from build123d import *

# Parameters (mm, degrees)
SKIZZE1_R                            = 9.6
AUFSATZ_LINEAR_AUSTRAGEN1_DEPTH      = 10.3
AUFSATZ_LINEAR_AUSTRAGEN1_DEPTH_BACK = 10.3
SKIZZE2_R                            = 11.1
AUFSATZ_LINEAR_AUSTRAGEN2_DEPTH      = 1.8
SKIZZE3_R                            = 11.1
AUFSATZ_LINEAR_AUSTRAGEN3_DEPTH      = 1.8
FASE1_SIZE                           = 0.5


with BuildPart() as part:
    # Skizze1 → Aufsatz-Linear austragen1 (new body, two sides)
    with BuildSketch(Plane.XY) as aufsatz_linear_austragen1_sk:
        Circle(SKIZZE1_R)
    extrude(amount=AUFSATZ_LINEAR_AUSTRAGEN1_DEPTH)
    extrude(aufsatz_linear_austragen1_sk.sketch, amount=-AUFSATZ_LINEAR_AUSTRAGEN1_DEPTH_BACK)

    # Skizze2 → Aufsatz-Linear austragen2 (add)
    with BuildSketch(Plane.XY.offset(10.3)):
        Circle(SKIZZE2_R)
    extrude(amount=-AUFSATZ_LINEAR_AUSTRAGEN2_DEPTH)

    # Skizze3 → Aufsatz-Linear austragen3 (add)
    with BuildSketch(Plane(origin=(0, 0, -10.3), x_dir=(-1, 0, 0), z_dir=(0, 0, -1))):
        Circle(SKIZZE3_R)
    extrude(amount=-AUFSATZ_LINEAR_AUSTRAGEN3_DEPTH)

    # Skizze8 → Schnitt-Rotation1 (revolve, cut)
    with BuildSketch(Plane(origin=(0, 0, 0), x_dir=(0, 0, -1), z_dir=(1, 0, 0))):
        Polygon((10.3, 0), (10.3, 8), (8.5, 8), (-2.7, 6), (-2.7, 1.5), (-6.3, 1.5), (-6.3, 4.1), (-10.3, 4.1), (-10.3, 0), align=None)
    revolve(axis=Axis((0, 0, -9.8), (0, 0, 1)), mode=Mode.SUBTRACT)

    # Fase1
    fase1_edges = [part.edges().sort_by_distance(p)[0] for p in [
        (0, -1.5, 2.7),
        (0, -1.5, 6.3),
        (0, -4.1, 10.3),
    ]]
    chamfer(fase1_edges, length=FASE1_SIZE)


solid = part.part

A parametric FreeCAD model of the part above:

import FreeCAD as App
import Part
import Sketcher


def edges_at(feature, points):
    """Names of the edges that pass closest to the given points."""
    edges = feature.Shape.Edges
    near = lambda p: min(range(len(edges)), key=lambda i: edges[i].distToShape(Part.Vertex(*p))[0])
    return sorted({f"Edge{near(p) + 1}" for p in points})

doc = App.newDocument("Part")
body = doc.addObject("PartDesign::Body", "Body")

# Sketch on XY plane
sketch1 = body.newObject("Sketcher::SketchObject", "Sketch")
sketch1.AttachmentSupport = (doc.getObject("XY_Plane"), [""])
sketch1.MapMode = "FlatFace"
sketch1.addGeometry(Part.Circle(App.Vector(0, 0, 0), App.Vector(0, 0, 1), 10), False)
sketch1.addConstraint([
    Sketcher.Constraint("Coincident", 0, 3, -1, 1),
    Sketcher.Constraint("Diameter", 0, 19.2),
])
pad1 = body.newObject("PartDesign::Pad", "Pad")
pad1.Profile = sketch1
pad1.Type = "TwoLengths"
pad1.Length = 10.3
pad1.Length2 = 10.3

# Sketch on XY plane
sketch2 = body.newObject("Sketcher::SketchObject", "Sketch001")
sketch2.AttachmentSupport = (doc.getObject("XY_Plane"), [""])
sketch2.MapMode = "FlatFace"
sketch2.AttachmentOffset = App.Placement(App.Vector(0, 0, 10.3), App.Rotation())
sketch2.addGeometry(Part.Circle(App.Vector(0, 0, 0), App.Vector(0, 0, 1), 11), False)
sketch2.addConstraint([
    Sketcher.Constraint("Coincident", 0, 3, -1, 1),
    Sketcher.Constraint("Diameter", 0, 22.2),
])
pad2 = body.newObject("PartDesign::Pad", "Pad001")
pad2.Profile = sketch2
pad2.Length = 1.8
pad2.Reversed = True

# Sketch on XY plane
sketch3 = body.newObject("Sketcher::SketchObject", "Sketch002")
sketch3.AttachmentSupport = (doc.getObject("XY_Plane"), [""])
sketch3.MapMode = "FlatFace"
sketch3.AttachmentOffset = App.Placement(App.Vector(0, 0, -10.3), App.Rotation())
sketch3.addGeometry(Part.Circle(App.Vector(0, 0, 0), App.Vector(0, 0, 1), 11), False)
sketch3.addConstraint([
    Sketcher.Constraint("Coincident", 0, 3, -1, 1),
    Sketcher.Constraint("Diameter", 0, 22.2),
])
pad3 = body.newObject("PartDesign::Pad", "Pad002")
pad3.Profile = sketch3
pad3.Length = 1.8

# Sketch on YZ plane
sketch4 = body.newObject("Sketcher::SketchObject", "Sketch003")
sketch4.AttachmentSupport = (doc.getObject("YZ_Plane"), [""])
sketch4.MapMode = "FlatFace"
sketch4.addGeometry([
    Part.LineSegment(App.Vector(0, -10.3, 0), App.Vector(8, -10.3, 0)),  # 0
    Part.LineSegment(App.Vector(8, -10.3, 0), App.Vector(8, -8.5, 0)),  # 1
    Part.LineSegment(App.Vector(8, -8.5, 0), App.Vector(6, 2.7, 0)),  # 2
    Part.LineSegment(App.Vector(6, 2.7, 0), App.Vector(1.5, 2.7, 0)),  # 3
    Part.LineSegment(App.Vector(1.5, 2.7, 0), App.Vector(1.5, 6.3, 0)),  # 4
    Part.LineSegment(App.Vector(1.5, 6.3, 0), App.Vector(4.1, 6.3, 0)),  # 5
    Part.LineSegment(App.Vector(4.1, 6.3, 0), App.Vector(4.1, 10.3, 0)),  # 6
    Part.LineSegment(App.Vector(4.1, 10.3, 0), App.Vector(0, 10.3, 0)),  # 7
    Part.LineSegment(App.Vector(0, 10.3, 0), App.Vector(0, -10.3, 0)),  # 8
], False)
sketch4.addConstraint([
    Sketcher.Constraint("Coincident", 0, 2, 1, 1),
    Sketcher.Constraint("Coincident", 1, 2, 2, 1),
    Sketcher.Constraint("Coincident", 2, 2, 3, 1),
    Sketcher.Constraint("Coincident", 3, 2, 4, 1),
    Sketcher.Constraint("Coincident", 4, 2, 5, 1),
    Sketcher.Constraint("Coincident", 5, 2, 6, 1),
    Sketcher.Constraint("Coincident", 6, 2, 7, 1),
    Sketcher.Constraint("Coincident", 7, 2, 8, 1),
    Sketcher.Constraint("Coincident", 8, 2, 0, 1),
    Sketcher.Constraint("Horizontal", 0),
    Sketcher.Constraint("Vertical", 1),
    Sketcher.Constraint("Horizontal", 3),
    Sketcher.Constraint("Vertical", 4),
    Sketcher.Constraint("Horizontal", 5),
    Sketcher.Constraint("Vertical", 6),
    Sketcher.Constraint("Horizontal", 7),
    Sketcher.Constraint("Vertical", 8),
    Sketcher.Constraint("Symmetric", 7, 2, 8, 2, -1, 1),
    Sketcher.Constraint("DistanceX", 0, 1, 0, 2, 8.0),
    Sketcher.Constraint("DistanceY", 6, 1, 6, 2, 4.0),
    Sketcher.Constraint("DistanceX", 3, 2, 3, 1, 4.5),
    Sketcher.Constraint("DistanceX", 5, 1, 5, 2, 2.6),
    Sketcher.Constraint("DistanceX", 7, 2, 7, 1, 4.1),
    Sketcher.Constraint("DistanceY", 1, 1, 1, 2, 1.8),
    Sketcher.Constraint("DistanceY", 4, 1, 4, 2, 3.6),
    Sketcher.Constraint("DistanceY", 8, 2, 8, 1, 20.6),
])
groove = body.newObject("PartDesign::Groove", "Groove")
groove.Profile = sketch4
groove.ReferenceAxis = (sketch4, ["V_Axis"])
groove.Angle = 360
doc.recompute()

chamfer = body.newObject("PartDesign::Chamfer", "Chamfer")
chamfer.Base = (groove, edges_at(groove, [(0, -1.5, 2.7), (0, -1.5, 6.3), (0, -4.1, 10.3)]))
chamfer.Size = 0.5

doc.recompute()
